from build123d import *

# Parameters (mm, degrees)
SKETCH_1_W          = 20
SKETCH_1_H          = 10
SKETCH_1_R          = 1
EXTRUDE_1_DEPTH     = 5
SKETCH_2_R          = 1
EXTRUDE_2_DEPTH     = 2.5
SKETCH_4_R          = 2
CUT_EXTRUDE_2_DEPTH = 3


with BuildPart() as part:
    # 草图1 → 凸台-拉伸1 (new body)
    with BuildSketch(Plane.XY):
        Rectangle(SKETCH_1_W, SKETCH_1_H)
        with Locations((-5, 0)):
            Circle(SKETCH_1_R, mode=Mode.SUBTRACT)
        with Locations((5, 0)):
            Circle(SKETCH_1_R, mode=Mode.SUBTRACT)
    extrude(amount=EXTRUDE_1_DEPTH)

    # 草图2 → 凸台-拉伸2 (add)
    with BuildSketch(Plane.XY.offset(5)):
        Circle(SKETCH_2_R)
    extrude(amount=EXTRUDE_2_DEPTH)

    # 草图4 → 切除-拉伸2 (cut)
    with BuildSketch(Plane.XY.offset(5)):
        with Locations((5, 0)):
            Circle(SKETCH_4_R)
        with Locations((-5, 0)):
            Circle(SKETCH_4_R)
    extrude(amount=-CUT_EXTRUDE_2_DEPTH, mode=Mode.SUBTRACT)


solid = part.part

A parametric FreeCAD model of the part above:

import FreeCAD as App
import Part
import Sketcher
Q = App.Units.Quantity

doc = App.newDocument("Part")
params = doc.addObject("Spreadsheet::Sheet", "Params")
for row, (alias, value) in enumerate([
    ("sketch1_diameter", "2 mm"),
    ("sketch1_width", "20 mm"),
    ("sketch1_height", "10 mm"),
    ("pad1_length", "5 mm"),
    ("sketch2_diameter", "2 mm"),
    ("pad2_length", "2.5 mm"),
    ("sketch3_diameter", "4 mm"),
    ("pocket1_length", "3 mm"),
], start=1):
    params.set(f"A{row}", alias)
    params.set(f"B{row}", "=" + value)
    params.setAlias(f"B{row}", alias)

body = doc.addObject("PartDesign::Body", "Body")

sketch1 = body.newObject("Sketcher::SketchObject", "Sketch")
sketch1.AttachmentSupport = (doc.getObject("XY_Plane"), [""])
sketch1.MapMode = "FlatFace"
sketch1.addGeometry([
    Part.LineSegment(App.Vector(-10, 5, 0), App.Vector(-10, -5, 0)),
    Part.LineSegment(App.Vector(-10, -5, 0), App.Vector(10, -5, 0)),
    Part.LineSegment(App.Vector(10, -5, 0), App.Vector(10, 5, 0)),
    Part.LineSegment(App.Vector(10, 5, 0), App.Vector(-10, 5, 0)),
    Part.Circle(App.Vector(-5, 0, 0), App.Vector(0, 0, 1), 1),
    Part.Circle(App.Vector(5, 0, 0), App.Vector(0, 0, 1), 1),
], False)
sketch1.addConstraint([
    Sketcher.Constraint("Coincident", 0, 2, 1, 1),
    Sketcher.Constraint("Coincident", 1, 2, 2, 1),
    Sketcher.Constraint("Coincident", 2, 2, 3, 1),
    Sketcher.Constraint("Coincident", 3, 2, 0, 1),
    Sketcher.Constraint("Vertical", 0),
    Sketcher.Constraint("Horizontal", 1),
    Sketcher.Constraint("Vertical", 2),
    Sketcher.Constraint("Horizontal", 3),
    Sketcher.Constraint("Equal", 4, 5),
    Sketcher.Constraint("Symmetric", 4, 3, 5, 3, -1, 1),
    Sketcher.Constraint("Symmetric", 0, 2, 2, 2, -1, 1),
    Sketcher.Constraint("PointOnObject", 4, 3, -1),
    Sketcher.Constraint("Diameter", 4, Q("2 mm")),
    Sketcher.Constraint("DistanceX", 1, 1, 1, 2, Q("20 mm")),
    Sketcher.Constraint("DistanceY", 0, 2, 0, 1, Q("10 mm")),
    Sketcher.Constraint("DistanceX", 4, 3, -1, 1, Q("5 mm")),
])
sketch1.setExpression("Constraints[12]", "Params.sketch1_diameter")
sketch1.setExpression("Constraints[13]", "Params.sketch1_width")
sketch1.setExpression("Constraints[14]", "Params.sketch1_height")
pad1 = body.newObject("PartDesign::Pad", "Pad")
pad1.Profile = sketch1
pad1.setExpression("Length", "Params.pad1_length")

sketch2 = body.newObject("Sketcher::SketchObject", "Sketch001")
sketch2.AttachmentSupport = (doc.getObject("XY_Plane"), [""])
sketch2.MapMode = "FlatFace"
sketch2.AttachmentOffset = App.Placement(App.Vector(0, 0, 5), App.Rotation())
sketch2.addGeometry(Part.Circle(App.Vector(0, 0, 0), App.Vector(0, 0, 1), 1), False)
sketch2.addConstraint([
    Sketcher.Constraint("Coincident", 0, 3, -1, 1),
    Sketcher.Constraint("Diameter", 0, Q("2 mm")),
])
sketch2.setExpression("Constraints[1]", "Params.sketch2_diameter")
pad2 = body.newObject("PartDesign::Pad", "Pad001")
pad2.Profile = sketch2
pad2.setExpression("Length", "Params.pad2_length")

sketch3 = body.newObject("Sketcher::SketchObject", "Sketch002")
sketch3.AttachmentSupport = (doc.getObject("XY_Plane"), [""])
sketch3.MapMode = "FlatFace"
sketch3.AttachmentOffset = App.Placement(App.Vector(0, 0, 5), App.Rotation())
sketch3.addGeometry([
    Part.Circle(App.Vector(5, 0, 0), App.Vector(0, 0, 1), 2),
    Part.Circle(App.Vector(-5, 0, 0), App.Vector(0, 0, 1), 2),
], False)
sketch3.addConstraint([
    Sketcher.Constraint("Equal", 0, 1),
    Sketcher.Constraint("Symmetric", 0, 3, 1, 3, -1, 1),
    Sketcher.Constraint("PointOnObject", 0, 3, -1),
    Sketcher.Constraint("Diameter", 0, Q("4 mm")),
    Sketcher.Constraint("DistanceX", -1, 1, 0, 3, Q("5 mm")),
])
sketch3.setExpression("Constraints[3]", "Params.sketch3_diameter")
pocket1 = body.newObject("PartDesign::Pocket", "Pocket")
pocket1.Profile = sketch3
pocket1.setExpression("Length", "Params.pocket1_length")

doc.recompute()
